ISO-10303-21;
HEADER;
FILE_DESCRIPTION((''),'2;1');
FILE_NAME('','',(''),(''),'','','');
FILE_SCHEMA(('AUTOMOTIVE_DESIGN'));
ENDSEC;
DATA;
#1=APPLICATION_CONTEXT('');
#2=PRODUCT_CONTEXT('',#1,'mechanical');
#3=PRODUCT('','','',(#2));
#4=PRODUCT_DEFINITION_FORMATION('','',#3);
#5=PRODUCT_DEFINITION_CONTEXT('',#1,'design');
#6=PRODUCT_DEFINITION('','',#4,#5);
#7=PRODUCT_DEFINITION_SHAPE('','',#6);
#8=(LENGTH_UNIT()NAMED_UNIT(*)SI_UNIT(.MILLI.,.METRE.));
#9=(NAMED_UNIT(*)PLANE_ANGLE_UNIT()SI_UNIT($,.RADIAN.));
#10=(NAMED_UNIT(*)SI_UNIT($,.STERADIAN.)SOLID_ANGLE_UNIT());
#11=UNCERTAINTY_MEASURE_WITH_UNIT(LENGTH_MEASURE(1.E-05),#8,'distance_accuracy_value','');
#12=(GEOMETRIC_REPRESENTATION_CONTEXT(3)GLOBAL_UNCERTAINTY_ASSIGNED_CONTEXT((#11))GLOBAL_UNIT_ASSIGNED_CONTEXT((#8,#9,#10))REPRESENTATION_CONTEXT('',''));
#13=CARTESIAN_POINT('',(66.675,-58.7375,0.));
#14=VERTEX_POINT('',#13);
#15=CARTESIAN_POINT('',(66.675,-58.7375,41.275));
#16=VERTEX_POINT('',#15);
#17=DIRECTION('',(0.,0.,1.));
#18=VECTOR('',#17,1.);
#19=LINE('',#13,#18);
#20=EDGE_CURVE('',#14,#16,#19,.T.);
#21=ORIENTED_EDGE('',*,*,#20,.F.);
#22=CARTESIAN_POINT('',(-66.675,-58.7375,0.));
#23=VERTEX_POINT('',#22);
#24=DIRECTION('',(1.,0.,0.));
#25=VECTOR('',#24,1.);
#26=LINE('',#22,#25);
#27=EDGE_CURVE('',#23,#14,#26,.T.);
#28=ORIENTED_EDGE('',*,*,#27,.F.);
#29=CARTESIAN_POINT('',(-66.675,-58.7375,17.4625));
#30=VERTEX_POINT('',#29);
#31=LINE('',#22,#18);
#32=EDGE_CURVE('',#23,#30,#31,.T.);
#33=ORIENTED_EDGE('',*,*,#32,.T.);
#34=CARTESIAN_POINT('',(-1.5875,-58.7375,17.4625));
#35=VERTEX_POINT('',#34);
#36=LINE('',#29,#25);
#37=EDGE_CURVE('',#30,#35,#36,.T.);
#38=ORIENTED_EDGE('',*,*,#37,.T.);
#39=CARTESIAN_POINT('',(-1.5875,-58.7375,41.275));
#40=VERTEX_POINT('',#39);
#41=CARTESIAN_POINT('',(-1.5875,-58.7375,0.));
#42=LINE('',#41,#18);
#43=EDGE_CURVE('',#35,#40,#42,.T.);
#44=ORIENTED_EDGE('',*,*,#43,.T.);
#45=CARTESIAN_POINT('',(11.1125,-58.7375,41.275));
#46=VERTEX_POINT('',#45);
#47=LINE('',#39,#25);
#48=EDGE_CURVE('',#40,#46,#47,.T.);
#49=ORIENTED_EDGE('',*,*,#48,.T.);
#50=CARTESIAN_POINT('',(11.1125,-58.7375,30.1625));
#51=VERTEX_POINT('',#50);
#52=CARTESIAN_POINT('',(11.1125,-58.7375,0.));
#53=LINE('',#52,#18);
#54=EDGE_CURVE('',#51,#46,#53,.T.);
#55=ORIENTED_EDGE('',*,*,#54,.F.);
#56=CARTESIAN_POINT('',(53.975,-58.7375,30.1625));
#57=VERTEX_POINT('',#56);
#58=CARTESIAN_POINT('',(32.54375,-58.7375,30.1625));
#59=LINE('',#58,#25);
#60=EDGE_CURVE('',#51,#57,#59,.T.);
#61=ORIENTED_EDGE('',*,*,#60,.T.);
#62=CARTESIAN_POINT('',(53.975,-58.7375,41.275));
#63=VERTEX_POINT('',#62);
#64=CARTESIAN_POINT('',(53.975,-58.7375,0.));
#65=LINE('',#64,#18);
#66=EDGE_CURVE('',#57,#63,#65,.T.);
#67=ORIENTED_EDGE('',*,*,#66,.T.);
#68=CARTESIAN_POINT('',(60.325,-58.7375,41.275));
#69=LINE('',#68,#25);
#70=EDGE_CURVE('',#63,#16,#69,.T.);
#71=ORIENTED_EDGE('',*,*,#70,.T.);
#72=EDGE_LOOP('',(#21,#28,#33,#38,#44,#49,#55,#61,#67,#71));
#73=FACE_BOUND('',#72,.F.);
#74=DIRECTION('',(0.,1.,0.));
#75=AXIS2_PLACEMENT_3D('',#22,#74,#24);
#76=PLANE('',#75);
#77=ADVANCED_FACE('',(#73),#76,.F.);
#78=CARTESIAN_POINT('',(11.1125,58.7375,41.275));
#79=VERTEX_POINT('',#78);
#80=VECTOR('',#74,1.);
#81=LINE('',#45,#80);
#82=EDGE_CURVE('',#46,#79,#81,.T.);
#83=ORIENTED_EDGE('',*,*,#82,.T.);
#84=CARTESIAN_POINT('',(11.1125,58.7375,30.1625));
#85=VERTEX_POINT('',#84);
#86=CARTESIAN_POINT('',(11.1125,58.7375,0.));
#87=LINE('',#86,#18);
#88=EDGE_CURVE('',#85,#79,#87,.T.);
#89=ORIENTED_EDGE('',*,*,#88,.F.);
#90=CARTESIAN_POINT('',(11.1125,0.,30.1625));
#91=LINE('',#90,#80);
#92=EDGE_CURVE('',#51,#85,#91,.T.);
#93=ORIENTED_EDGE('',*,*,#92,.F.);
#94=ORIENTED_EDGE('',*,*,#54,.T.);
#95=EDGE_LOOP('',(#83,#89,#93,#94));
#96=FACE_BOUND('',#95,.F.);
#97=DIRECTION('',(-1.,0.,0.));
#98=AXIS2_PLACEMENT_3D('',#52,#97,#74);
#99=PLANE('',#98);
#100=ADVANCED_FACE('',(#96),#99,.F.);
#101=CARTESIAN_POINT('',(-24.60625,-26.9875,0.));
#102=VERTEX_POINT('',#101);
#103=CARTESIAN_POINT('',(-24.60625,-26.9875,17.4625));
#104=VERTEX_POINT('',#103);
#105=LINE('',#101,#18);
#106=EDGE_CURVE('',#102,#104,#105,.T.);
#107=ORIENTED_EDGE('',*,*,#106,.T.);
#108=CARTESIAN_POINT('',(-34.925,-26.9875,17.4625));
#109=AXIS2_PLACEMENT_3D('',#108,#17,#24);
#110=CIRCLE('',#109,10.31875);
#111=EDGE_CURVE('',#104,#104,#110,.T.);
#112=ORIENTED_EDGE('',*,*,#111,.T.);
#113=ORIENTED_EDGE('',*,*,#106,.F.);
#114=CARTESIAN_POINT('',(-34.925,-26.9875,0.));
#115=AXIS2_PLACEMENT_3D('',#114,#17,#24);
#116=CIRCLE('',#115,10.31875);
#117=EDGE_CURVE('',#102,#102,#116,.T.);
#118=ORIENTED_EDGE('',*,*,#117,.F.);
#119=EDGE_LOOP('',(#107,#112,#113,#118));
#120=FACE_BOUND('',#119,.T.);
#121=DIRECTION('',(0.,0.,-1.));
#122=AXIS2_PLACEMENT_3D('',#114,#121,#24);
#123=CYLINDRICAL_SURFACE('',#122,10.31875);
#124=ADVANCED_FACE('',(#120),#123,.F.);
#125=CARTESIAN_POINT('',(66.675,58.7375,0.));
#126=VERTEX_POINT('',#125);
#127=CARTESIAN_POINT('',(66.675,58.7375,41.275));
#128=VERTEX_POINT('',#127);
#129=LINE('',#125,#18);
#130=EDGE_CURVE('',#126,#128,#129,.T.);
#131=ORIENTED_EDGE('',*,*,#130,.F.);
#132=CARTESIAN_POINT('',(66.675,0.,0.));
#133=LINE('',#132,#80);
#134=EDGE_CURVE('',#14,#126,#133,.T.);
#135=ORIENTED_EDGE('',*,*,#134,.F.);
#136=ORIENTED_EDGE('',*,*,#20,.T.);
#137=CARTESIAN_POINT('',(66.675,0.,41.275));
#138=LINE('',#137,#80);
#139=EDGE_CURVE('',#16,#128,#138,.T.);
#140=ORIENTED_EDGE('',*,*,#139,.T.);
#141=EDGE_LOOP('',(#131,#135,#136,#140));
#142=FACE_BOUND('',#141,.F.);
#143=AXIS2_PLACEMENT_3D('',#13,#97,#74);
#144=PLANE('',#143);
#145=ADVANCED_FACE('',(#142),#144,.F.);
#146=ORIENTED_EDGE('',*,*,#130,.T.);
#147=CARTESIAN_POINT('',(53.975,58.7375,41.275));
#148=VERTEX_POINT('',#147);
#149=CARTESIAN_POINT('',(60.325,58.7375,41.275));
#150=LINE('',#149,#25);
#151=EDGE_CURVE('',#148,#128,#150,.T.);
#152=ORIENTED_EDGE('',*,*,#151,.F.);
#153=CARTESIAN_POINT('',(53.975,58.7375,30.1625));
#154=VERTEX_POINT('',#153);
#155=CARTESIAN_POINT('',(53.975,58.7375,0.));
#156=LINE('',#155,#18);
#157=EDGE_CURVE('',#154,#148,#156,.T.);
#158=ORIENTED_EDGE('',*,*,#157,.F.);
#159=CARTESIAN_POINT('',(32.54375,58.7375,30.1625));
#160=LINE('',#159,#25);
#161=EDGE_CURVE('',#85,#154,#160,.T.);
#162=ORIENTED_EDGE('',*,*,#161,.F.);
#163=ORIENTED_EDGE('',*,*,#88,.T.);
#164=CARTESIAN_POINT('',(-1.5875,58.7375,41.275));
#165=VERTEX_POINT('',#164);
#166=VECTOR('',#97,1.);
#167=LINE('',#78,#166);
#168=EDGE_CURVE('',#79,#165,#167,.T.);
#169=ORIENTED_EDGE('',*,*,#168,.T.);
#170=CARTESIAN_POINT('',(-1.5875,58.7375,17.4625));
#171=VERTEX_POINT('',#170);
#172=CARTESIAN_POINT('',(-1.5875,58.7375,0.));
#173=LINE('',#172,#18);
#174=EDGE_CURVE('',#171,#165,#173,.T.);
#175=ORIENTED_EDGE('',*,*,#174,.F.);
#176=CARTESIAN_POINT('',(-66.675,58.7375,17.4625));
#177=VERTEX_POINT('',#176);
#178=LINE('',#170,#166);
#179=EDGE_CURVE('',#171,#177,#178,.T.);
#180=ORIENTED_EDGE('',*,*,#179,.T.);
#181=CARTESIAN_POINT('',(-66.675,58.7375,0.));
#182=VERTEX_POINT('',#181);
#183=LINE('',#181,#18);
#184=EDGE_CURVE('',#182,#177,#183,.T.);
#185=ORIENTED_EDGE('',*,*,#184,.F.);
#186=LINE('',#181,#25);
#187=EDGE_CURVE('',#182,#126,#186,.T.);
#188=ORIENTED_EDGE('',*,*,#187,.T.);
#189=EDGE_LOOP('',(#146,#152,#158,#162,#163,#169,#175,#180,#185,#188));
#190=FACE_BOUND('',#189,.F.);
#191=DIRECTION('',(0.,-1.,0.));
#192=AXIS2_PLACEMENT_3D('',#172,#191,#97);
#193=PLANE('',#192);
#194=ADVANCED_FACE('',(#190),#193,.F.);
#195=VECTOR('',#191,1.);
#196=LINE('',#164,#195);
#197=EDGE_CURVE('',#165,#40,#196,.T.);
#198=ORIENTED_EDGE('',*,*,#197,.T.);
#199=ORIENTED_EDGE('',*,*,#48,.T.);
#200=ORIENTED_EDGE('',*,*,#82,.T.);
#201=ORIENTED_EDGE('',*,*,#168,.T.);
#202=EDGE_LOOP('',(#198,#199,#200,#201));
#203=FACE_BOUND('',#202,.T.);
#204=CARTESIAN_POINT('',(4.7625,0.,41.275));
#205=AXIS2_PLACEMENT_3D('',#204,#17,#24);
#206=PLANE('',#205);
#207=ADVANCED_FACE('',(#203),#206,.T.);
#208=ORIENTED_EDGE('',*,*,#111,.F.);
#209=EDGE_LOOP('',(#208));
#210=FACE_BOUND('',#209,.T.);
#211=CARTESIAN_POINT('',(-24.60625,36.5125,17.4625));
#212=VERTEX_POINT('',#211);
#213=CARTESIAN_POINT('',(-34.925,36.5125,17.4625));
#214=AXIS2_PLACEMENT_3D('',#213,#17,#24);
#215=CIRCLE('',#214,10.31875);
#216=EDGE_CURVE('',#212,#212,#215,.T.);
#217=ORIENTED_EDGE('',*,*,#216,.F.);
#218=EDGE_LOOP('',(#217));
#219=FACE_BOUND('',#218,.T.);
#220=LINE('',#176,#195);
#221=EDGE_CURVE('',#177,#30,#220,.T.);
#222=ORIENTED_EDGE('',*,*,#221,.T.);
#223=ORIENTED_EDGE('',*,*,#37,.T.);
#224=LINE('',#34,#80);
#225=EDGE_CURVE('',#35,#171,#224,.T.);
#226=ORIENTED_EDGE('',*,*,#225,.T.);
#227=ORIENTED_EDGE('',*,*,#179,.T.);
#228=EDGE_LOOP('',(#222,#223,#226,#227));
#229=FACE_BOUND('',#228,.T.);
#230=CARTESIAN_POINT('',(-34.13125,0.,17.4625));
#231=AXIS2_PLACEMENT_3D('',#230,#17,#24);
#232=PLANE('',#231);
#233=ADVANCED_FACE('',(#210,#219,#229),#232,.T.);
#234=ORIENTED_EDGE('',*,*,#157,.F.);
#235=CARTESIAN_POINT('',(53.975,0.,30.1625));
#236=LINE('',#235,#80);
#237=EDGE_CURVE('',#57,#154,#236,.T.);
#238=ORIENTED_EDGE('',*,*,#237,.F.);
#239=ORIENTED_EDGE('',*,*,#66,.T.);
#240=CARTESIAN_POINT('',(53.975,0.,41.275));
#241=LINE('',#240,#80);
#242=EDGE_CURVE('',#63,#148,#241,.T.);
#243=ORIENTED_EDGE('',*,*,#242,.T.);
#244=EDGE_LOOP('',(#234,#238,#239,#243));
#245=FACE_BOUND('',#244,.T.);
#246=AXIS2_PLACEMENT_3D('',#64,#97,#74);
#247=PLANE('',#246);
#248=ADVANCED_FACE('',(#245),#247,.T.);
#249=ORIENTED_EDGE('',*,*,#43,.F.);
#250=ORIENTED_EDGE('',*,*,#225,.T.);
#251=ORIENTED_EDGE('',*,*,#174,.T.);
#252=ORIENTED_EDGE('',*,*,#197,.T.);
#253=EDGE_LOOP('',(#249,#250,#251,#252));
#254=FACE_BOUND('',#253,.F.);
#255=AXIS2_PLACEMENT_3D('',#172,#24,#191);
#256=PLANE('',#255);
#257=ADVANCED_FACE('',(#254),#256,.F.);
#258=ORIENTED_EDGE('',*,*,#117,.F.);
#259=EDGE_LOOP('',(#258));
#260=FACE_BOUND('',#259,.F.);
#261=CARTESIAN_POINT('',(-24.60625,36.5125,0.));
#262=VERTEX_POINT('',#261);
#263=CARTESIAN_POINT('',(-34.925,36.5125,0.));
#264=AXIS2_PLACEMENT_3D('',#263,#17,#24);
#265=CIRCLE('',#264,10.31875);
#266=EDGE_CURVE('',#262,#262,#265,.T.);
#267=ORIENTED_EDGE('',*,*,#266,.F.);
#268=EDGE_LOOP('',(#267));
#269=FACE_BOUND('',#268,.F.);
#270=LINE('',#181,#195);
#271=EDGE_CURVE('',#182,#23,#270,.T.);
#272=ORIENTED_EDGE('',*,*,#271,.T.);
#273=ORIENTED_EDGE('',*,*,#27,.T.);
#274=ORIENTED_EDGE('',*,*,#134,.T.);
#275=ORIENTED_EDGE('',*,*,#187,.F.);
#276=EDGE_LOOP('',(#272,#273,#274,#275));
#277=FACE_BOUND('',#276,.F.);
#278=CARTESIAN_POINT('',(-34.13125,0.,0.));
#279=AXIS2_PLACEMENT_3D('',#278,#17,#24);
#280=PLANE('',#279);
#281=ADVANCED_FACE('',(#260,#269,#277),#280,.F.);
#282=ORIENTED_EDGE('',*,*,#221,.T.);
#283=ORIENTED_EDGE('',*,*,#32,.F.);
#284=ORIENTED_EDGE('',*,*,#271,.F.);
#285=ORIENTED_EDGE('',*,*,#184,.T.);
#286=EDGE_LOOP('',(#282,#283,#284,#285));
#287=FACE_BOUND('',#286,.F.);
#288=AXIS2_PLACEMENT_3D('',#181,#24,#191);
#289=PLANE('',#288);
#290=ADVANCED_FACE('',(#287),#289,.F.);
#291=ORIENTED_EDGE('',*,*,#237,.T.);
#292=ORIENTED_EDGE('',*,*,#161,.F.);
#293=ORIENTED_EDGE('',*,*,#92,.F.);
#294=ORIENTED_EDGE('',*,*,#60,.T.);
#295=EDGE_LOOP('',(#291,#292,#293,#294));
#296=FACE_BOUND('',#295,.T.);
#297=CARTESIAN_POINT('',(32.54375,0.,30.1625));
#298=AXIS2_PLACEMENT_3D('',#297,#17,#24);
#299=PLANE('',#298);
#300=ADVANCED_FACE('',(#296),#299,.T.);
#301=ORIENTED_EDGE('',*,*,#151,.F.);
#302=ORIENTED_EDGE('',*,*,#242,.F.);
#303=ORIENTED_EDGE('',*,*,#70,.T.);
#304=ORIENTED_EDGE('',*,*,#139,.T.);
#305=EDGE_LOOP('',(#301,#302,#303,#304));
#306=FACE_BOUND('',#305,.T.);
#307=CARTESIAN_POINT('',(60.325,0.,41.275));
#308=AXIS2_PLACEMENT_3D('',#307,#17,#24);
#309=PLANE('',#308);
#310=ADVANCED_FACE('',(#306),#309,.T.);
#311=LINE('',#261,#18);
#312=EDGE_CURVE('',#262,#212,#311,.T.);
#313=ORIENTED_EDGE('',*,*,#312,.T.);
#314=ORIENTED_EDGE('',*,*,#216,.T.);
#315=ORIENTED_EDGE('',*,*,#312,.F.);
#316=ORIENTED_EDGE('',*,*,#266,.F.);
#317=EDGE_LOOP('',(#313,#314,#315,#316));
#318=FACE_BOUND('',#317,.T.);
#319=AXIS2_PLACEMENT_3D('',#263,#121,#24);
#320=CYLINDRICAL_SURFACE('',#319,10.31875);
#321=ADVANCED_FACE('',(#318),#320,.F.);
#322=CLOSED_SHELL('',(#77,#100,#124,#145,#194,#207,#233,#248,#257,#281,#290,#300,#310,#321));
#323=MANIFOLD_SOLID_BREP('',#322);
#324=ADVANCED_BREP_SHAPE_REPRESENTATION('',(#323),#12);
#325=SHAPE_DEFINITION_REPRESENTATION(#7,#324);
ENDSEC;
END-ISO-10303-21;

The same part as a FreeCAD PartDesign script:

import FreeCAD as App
import Part
import Sketcher
from FreeCAD import Vector
Q = App.Units.Quantity

doc = App.newDocument("Part")
params = doc.addObject("Spreadsheet::Sheet", "Params")
for row, (alias, value) in enumerate([
    ("sketch1_width", "0.5 in"),
    ("sketch1_height", "4.625 in"),
    ("pad1_length", "1.625 in"),
    ("sketch2_width", "1.6875 in"),
    ("sketch2_height", "4.625 in"),
    ("pad2_length", "1.1875 in"),
    ("sketch3_width", "0.5 in"),
    ("sketch3_height", "4.625 in"),
    ("pad3_length", "1.625 in"),
    ("sketch4_diameter", "0.8125 in"),
    ("sketch4_width", "2.5625 in"),
    ("sketch4_height", "4.625 in"),
    ("pad4_length", "0.6875 in"),
], start=1):
    params.set(f"A{row}", alias)
    params.set(f"B{row}", "=" + value)
    params.setAlias(f"B{row}", alias)

body = doc.addObject("PartDesign::Body", "Body")

# Sketch on XY plane
sketch1 = body.newObject("Sketcher::SketchObject", "Sketch")
sketch1.AttachmentSupport = (doc.getObject("XY_Plane"), [""])
sketch1.MapMode = "FlatFace"
sketch1.addGeometry([
    Part.LineSegment(Vector(-1.5875, -58.7375, 0), Vector(11.1125, -58.7375, 0)),
    Part.LineSegment(Vector(11.1125, -58.7375, 0), Vector(11.1125, 58.7375, 0)),
    Part.LineSegment(Vector(11.1125, 58.7375, 0), Vector(-1.5875, 58.7375, 0)),
    Part.LineSegment(Vector(-1.5875, 58.7375, 0), Vector(-1.5875, -58.7375, 0)),
], False)
sketch1.addConstraint([
    Sketcher.Constraint("Coincident", 0, 2, 1, 1),
    Sketcher.Constraint("Coincident", 1, 2, 2, 1),
    Sketcher.Constraint("Coincident", 2, 2, 3, 1),
    Sketcher.Constraint("Coincident", 3, 2, 0, 1),
    Sketcher.Constraint("Horizontal", 0),
    Sketcher.Constraint("Vertical", 1),
    Sketcher.Constraint("Horizontal", 2),
    Sketcher.Constraint("Vertical", 3),
    Sketcher.Constraint("DistanceX", 0, 1, 0, 2, Q("0.5 in")),
    Sketcher.Constraint("DistanceY", 1, 1, 1, 2, Q("4.625 in")),
    Sketcher.Constraint("DistanceX", -1, 1, 0, 2, Q("0.4375 in")),
    Sketcher.Constraint("DistanceY", 0, 2, -1, 1, Q("2.3125 in")),
])
sketch1.setExpression("Constraints[8]", "Params.sketch1_width")
sketch1.setExpression("Constraints[9]", "Params.sketch1_height")
pad1 = body.newObject("PartDesign::Pad", "Pad")
pad1.Profile = sketch1
pad1.setExpression("Length", "Params.pad1_length")

# Sketch on XY plane
sketch2 = body.newObject("Sketcher::SketchObject", "Sketch001")
sketch2.AttachmentSupport = (doc.getObject("XY_Plane"), [""])
sketch2.MapMode = "FlatFace"
sketch2.addGeometry([
    Part.LineSegment(Vector(11.1125, 58.7375, 0), Vector(11.1125, -58.7375, 0)),
    Part.LineSegment(Vector(11.1125, -58.7375, 0), Vector(53.975, -58.7375, 0)),
    Part.LineSegment(Vector(53.975, -58.7375, 0), Vector(53.975, 58.7375, 0)),
    Part.LineSegment(Vector(53.975, 58.7375, 0), Vector(11.1125, 58.7375, 0)),
], False)
sketch2.addConstraint([
    Sketcher.Constraint("Coincident", 0, 2, 1, 1),
    Sketcher.Constraint("Coincident", 1, 2, 2, 1),
    Sketcher.Constraint("Coincident", 2, 2, 3, 1),
    Sketcher.Constraint("Coincident", 3, 2, 0, 1),
    Sketcher.Constraint("Vertical", 0),
    Sketcher.Constraint("Horizontal", 1),
    Sketcher.Constraint("Vertical", 2),
    Sketcher.Constraint("Horizontal", 3),
    Sketcher.Constraint("DistanceX", 1, 1, 1, 2, Q("1.6875 in")),
    Sketcher.Constraint("DistanceY", 0, 2, 0, 1, Q("4.625 in")),
    Sketcher.Constraint("DistanceX", -1, 1, 0, 2, Q("0.4375 in")),
    Sketcher.Constraint("DistanceY", 0, 2, -1, 1, Q("2.3125 in")),
])
sketch2.setExpression("Constraints[8]", "Params.sketch2_width")
sketch2.setExpression("Constraints[9]", "Params.sketch2_height")
pad2 = body.newObject("PartDesign::Pad", "Pad001")
pad2.Profile = sketch2
pad2.setExpression("Length", "Params.pad2_length")

# Sketch on XY plane
sketch3 = body.newObject("Sketcher::SketchObject", "Sketch002")
sketch3.AttachmentSupport = (doc.getObject("XY_Plane"), [""])
sketch3.MapMode = "FlatFace"
sketch3.addGeometry([
    Part.LineSegment(Vector(53.975, 58.7375, 0), Vector(53.975, -58.7375, 0)),
    Part.LineSegment(Vector(53.975, -58.7375, 0), Vector(66.675, -58.7375, 0)),
    Part.LineSegment(Vector(66.675, -58.7375, 0), Vector(66.675, 58.7375, 0)),
    Part.LineSegment(Vector(66.675, 58.7375, 0), Vector(53.975, 58.7375, 0)),
], False)
sketch3.addConstraint([
    Sketcher.Constraint("Coincident", 0, 2, 1, 1),
    Sketcher.Constraint("Coincident", 1, 2, 2, 1),
    Sketcher.Constraint("Coincident", 2, 2, 3, 1),
    Sketcher.Constraint("Coincident", 3, 2, 0, 1),
    Sketcher.Constraint("Vertical", 0),
    Sketcher.Constraint("Horizontal", 1),
    Sketcher.Constraint("Vertical", 2),
    Sketcher.Constraint("Horizontal", 3),
    Sketcher.Constraint("DistanceX", 1, 1, 1, 2, Q("0.5 in")),
    Sketcher.Constraint("DistanceY", 0, 2, 0, 1, Q("4.625 in")),
    Sketcher.Constraint("DistanceX", -1, 1, 0, 2, Q("2.125 in")),
    Sketcher.Constraint("DistanceY", 0, 2, -1, 1, Q("2.3125 in")),
])
sketch3.setExpression("Constraints[8]", "Params.sketch3_width")
sketch3.setExpression("Constraints[9]", "Params.sketch3_height")
pad3 = body.newObject("PartDesign::Pad", "Pad002")
pad3.Profile = sketch3
pad3.setExpression("Length", "Params.pad3_length")

# Sketch on XY plane
sketch4 = body.newObject("Sketcher::SketchObject", "Sketch003")
sketch4.AttachmentSupport = (doc.getObject("XY_Plane"), [""])
sketch4.MapMode = "FlatFace"
sketch4.addGeometry([
    Part.LineSegment(Vector(-66.675, -58.7375, 0), Vector(-1.5875, -58.7375, 0)),  # 0
    Part.LineSegment(Vector(-1.5875, -58.7375, 0), Vector(-1.5875, 58.7375, 0)),  # 1
    Part.LineSegment(Vector(-1.5875, 58.7375, 0), Vector(-66.675, 58.7375, 0)),  # 2
    Part.LineSegment(Vector(-66.675, 58.7375, 0), Vector(-66.675, -58.7375, 0)),  # 3
    Part.Circle(Vector(-34.925, -26.9875, 0), Vector(0, 0, 1), 10.31875),  # 4
    Part.Circle(Vector(-34.925, 36.5125, 0), Vector(0, 0, 1), 10.31875),  # 5
], False)
sketch4.addConstraint([
    Sketcher.Constraint("Coincident", 0, 2, 1, 1),
    Sketcher.Constraint("Coincident", 1, 2, 2, 1),
    Sketcher.Constraint("Coincident", 2, 2, 3, 1),
    Sketcher.Constraint("Coincident", 3, 2, 0, 1),
    Sketcher.Constraint("Horizontal", 0),
    Sketcher.Constraint("Vertical", 1),
    Sketcher.Constraint("Horizontal", 2),
    Sketcher.Constraint("Vertical", 3),
    Sketcher.Constraint("Equal", 4, 5),
    Sketcher.Constraint("Vertical", 4, 3, 5, 3),
    Sketcher.Constraint("Diameter", 4, Q("0.8125 in")),
    Sketcher.Constraint("DistanceY", 4, 3, 5, 3, Q("2.5 in")),
    Sketcher.Constraint("DistanceX", 0, 1, 0, 2, Q("2.5625 in")),
    Sketcher.Constraint("DistanceY", 1, 1, 1, 2, Q("4.625 in")),
    Sketcher.Constraint("DistanceY", 0, 2, 4, 3, Q("1.25 in")),
    Sketcher.Constraint("DistanceX", 2, 2, 5, 3, Q("1.25 in")),
    Sketcher.Constraint("DistanceX", 4, 3, -1, 1, Q("1.375 in")),
    Sketcher.Constraint("DistanceY", 4, 3, -1, 1, Q("1.0625 in")),
])
sketch4.setExpression("Constraints[10]", "Params.sketch4_diameter")
sketch4.setExpression("Constraints[12]", "Params.sketch4_width")
sketch4.setExpression("Constraints[13]", "Params.sketch4_height")
pad4 = body.newObject("PartDesign::Pad", "Pad003")
pad4.Profile = sketch4
pad4.setExpression("Length", "Params.pad4_length")

doc.recompute()
